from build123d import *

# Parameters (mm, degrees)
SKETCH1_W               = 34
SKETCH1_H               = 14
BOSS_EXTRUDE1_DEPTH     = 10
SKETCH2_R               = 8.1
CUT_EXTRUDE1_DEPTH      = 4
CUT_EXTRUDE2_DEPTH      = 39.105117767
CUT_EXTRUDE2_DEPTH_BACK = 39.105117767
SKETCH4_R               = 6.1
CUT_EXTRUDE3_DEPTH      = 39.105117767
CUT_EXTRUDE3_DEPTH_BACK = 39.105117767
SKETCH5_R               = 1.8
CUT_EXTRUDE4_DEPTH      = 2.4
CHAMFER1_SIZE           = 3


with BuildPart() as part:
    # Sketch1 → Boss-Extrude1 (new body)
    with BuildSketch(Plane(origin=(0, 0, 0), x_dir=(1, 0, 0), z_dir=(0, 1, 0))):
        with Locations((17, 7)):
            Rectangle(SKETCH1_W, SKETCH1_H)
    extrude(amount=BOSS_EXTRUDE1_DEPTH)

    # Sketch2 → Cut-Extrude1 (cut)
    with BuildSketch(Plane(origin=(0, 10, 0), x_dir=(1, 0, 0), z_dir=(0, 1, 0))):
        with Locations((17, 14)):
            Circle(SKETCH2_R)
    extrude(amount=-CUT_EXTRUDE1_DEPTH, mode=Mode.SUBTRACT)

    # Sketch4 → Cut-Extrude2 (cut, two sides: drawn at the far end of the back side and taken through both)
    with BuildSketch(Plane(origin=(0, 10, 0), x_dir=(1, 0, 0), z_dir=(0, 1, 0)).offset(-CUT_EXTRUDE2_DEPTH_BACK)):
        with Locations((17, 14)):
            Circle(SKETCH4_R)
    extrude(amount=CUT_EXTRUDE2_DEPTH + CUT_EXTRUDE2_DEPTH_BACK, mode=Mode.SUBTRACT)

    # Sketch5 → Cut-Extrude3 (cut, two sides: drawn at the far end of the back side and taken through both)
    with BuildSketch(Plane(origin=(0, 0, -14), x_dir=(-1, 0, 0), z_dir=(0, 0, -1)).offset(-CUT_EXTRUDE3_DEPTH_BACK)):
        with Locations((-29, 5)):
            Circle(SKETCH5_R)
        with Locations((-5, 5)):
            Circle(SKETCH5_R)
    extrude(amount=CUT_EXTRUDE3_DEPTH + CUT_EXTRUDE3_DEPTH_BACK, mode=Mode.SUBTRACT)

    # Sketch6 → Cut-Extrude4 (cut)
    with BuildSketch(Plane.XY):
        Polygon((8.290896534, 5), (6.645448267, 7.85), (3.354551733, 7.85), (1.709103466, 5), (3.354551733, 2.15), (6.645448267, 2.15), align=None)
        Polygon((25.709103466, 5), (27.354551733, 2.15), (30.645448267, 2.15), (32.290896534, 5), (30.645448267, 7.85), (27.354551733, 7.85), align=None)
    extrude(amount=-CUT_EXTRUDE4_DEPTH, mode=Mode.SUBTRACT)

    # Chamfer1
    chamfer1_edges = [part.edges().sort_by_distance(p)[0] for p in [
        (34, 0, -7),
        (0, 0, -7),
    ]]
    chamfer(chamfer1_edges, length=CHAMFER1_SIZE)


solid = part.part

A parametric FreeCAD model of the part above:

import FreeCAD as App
import Part
import Sketcher
from FreeCAD import Vector
Q = App.Units.Quantity


def edges_at(feature, points):
    """Names of the edges that pass closest to the given points."""
    edges = feature.Shape.Edges
    near = lambda p: min(range(len(edges)), key=lambda i: edges[i].distToShape(Part.Vertex(*p))[0])
    return sorted({f"Edge{near(p) + 1}" for p in points})

doc = App.newDocument("Part")
body = doc.addObject("PartDesign::Body", "Body")

# Sketch on XZ plane
sketch1 = body.newObject("Sketcher::SketchObject", "Sketch")
sketch1.AttachmentSupport = (doc.getObject("XZ_Plane"), [""])
sketch1.MapMode = "FlatFace"
sketch1.addGeometry(Part.LineSegment(Vector(0, -14, 0), Vector(0, 0, 0)), False)
sketch1.addGeometry(Part.LineSegment(Vector(0, 0, 0), Vector(34, 0, 0)), False)
sketch1.addGeometry(Part.LineSegment(Vector(34, 0, 0), Vector(34, -14, 0)), False)
sketch1.addGeometry(Part.LineSegment(Vector(34, -14, 0), Vector(0, -14, 0)), False)
sketch1.addConstraint(Sketcher.Constraint("Coincident", 0, 2, 1, 1))
sketch1.addConstraint(Sketcher.Constraint("Coincident", 1, 2, 2, 1))
sketch1.addConstraint(Sketcher.Constraint("Coincident", 2, 2, 3, 1))
sketch1.addConstraint(Sketcher.Constraint("Coincident", 3, 2, 0, 1))
sketch1.addConstraint(Sketcher.Constraint("Vertical", 0))
sketch1.addConstraint(Sketcher.Constraint("Horizontal", 1))
sketch1.addConstraint(Sketcher.Constraint("Vertical", 2))
sketch1.addConstraint(Sketcher.Constraint("Horizontal", 3))
sketch1.addConstraint(Sketcher.Constraint("Coincident", 0, 2, -1, 1))
sketch1.addConstraint(Sketcher.Constraint("DistanceX", 1, 1, 1, 2, Q("34 mm")))
sketch1.addConstraint(Sketcher.Constraint("DistanceY", 0, 1, 0, 2, Q("14 mm")))
pad1 = body.newObject("PartDesign::Pad", "Pad")
pad1.Profile = sketch1
pad1.Length = 10
pad1.Reversed = True

# Sketch on XZ plane
sketch2 = body.newObject("Sketcher::SketchObject", "Sketch001")
sketch2.AttachmentSupport = (doc.getObject("XZ_Plane"), [""])
sketch2.MapMode = "FlatFace"
sketch2.AttachmentOffset = App.Placement(Vector(0, 0, -10), App.Rotation())
sketch2.addGeometry(Part.Circle(Vector(17, -14, 0), Vector(0, 0, 1), 8.1), False)
sketch2.addConstraint(Sketcher.Constraint("Diameter", 0, Q("16.2 mm")))
sketch2.addConstraint(Sketcher.Constraint("DistanceX", -1, 1, 0, 3, Q("17 mm")))
sketch2.addConstraint(Sketcher.Constraint("DistanceY", 0, 3, -1, 1, Q("14 mm")))
pocket1 = body.newObject("PartDesign::Pocket", "Pocket")
pocket1.Profile = sketch2
pocket1.Length = 4
pocket1.Reversed = True

# Sketch on XZ plane
sketch3 = body.newObject("Sketcher::SketchObject", "Sketch002")
sketch3.AttachmentSupport = (doc.getObject("XZ_Plane"), [""])
sketch3.MapMode = "FlatFace"
sketch3.AttachmentOffset = App.Placement(Vector(0, 0, -10), App.Rotation())
sketch3.addGeometry(Part.Circle(Vector(17, -14, 0), Vector(0, 0, 1), 6.1), False)
sketch3.addConstraint(Sketcher.Constraint("Diameter", 0, Q("12.2 mm")))
sketch3.addConstraint(Sketcher.Constraint("DistanceX", -1, 1, 0, 3, Q("17 mm")))
sketch3.addConstraint(Sketcher.Constraint("DistanceY", 0, 3, -1, 1, Q("14 mm")))
pocket2 = body.newObject("PartDesign::Pocket", "Pocket001")
pocket2.Profile = sketch3
pocket2.Type = "ThroughAll"
pocket2.Midplane = True

# Sketch on XY plane
sketch4 = body.newObject("Sketcher::SketchObject", "Sketch003")
sketch4.AttachmentSupport = (doc.getObject("XY_Plane"), [""])
sketch4.MapMode = "FlatFace"
sketch4.AttachmentOffset = App.Placement(Vector(0, 0, -14), App.Rotation())
sketch4.addGeometry(Part.Circle(Vector(29, 5, 0), Vector(0, 0, 1), 1.8), False)
sketch4.addGeometry(Part.Circle(Vector(5, 5, 0), Vector(0, 0, 1), 1.8), False)
sketch4.addConstraint(Sketcher.Constraint("Equal", 0, 1))
sketch4.addConstraint(Sketcher.Constraint("Horizontal", 0, 3, 1, 3))
sketch4.addConstraint(Sketcher.Constraint("Diameter", 0, Q("3.6 mm")))
sketch4.addConstraint(Sketcher.Constraint("DistanceX", -1, 1, 0, 3, Q("29 mm")))
sketch4.addConstraint(Sketcher.Constraint("DistanceY", -1, 1, 0, 3, Q("5 mm")))
sketch4.addConstraint(Sketcher.Constraint("DistanceX", -1, 1, 1, 3, Q("5 mm")))
pocket3 = body.newObject("PartDesign::Pocket", "Pocket002")
pocket3.Profile = sketch4
pocket3.Type = "ThroughAll"
pocket3.Midplane = True

# Sketch on XY plane
sketch5 = body.newObject("Sketcher::SketchObject", "Sketch004")
sketch5.AttachmentSupport = (doc.getObject("XY_Plane"), [""])
sketch5.MapMode = "FlatFace"
sketch5.addGeometry(Part.LineSegment(Vector(8.290897, 5, 0), Vector(6.645448, 7.85, 0)), False)
sketch5.addGeometry(Part.LineSegment(Vector(6.645448, 7.85, 0), Vector(3.354552, 7.85, 0)), False)
sketch5.addGeometry(Part.LineSegment(Vector(3.354552, 7.85, 0), Vector(1.709103, 5, 0)), False)
sketch5.addGeometry(Part.LineSegment(Vector(1.709103, 5, 0), Vector(3.354552, 2.15, 0)), False)
sketch5.addGeometry(Part.LineSegment(Vector(3.354552, 2.15, 0), Vector(6.645448, 2.15, 0)), False)
sketch5.addGeometry(Part.LineSegment(Vector(6.645448, 2.15, 0), Vector(8.290897, 5, 0)), False)
sketch5.addGeometry(Part.LineSegment(Vector(25.709103, 5, 0), Vector(27.354552, 2.15, 0)), False)
sketch5.addGeometry(Part.LineSegment(Vector(27.354552, 2.15, 0), Vector(30.645448, 2.15, 0)), False)
sketch5.addGeometry(Part.LineSegment(Vector(30.645448, 2.15, 0), Vector(32.290897, 5, 0)), False)
sketch5.addGeometry(Part.LineSegment(Vector(32.290897, 5, 0), Vector(30.645448, 7.85, 0)), False)
sketch5.addGeometry(Part.LineSegment(Vector(30.645448, 7.85, 0), Vector(27.354552, 7.85, 0)), False)
sketch5.addGeometry(Part.LineSegment(Vector(27.354552, 7.85, 0), Vector(25.709103, 5, 0)), False)
sketch5.addConstraint(Sketcher.Constraint("Coincident", 0, 2, 1, 1))
sketch5.addConstraint(Sketcher.Constraint("Coincident", 1, 2, 2, 1))
sketch5.addConstraint(Sketcher.Constraint("Coincident", 2, 2, 3, 1))
sketch5.addConstraint(Sketcher.Constraint("Coincident", 3, 2, 4, 1))
sketch5.addConstraint(Sketcher.Constraint("Coincident", 4, 2, 5, 1))
sketch5.addConstraint(Sketcher.Constraint("Coincident", 5, 2, 0, 1))
sketch5.addConstraint(Sketcher.Constraint("Coincident", 6, 2, 7, 1))
sketch5.addConstraint(Sketcher.Constraint("Coincident", 7, 2, 8, 1))
sketch5.addConstraint(Sketcher.Constraint("Coincident", 8, 2, 9, 1))
sketch5.addConstraint(Sketcher.Constraint("Coincident", 9, 2, 10, 1))
sketch5.addConstraint(Sketcher.Constraint("Coincident", 10, 2, 11, 1))
sketch5.addConstraint(Sketcher.Constraint("Coincident", 11, 2, 6, 1))
sketch5.addConstraint(Sketcher.Constraint("Horizontal", 1))
sketch5.addConstraint(Sketcher.Constraint("Horizontal", 4))
sketch5.addConstraint(Sketcher.Constraint("Horizontal", 7))
sketch5.addConstraint(Sketcher.Constraint("Horizontal", 10))
sketch5.addConstraint(Sketcher.Constraint("Parallel", 0, 3))
sketch5.addConstraint(Sketcher.Constraint("Parallel", 2, 5))
sketch5.addConstraint(Sketcher.Constraint("Parallel", 3, 6))
sketch5.addConstraint(Sketcher.Constraint("Parallel", 5, 8))
sketch5.addConstraint(Sketcher.Constraint("Parallel", 6, 9))
sketch5.addConstraint(Sketcher.Constraint("Parallel", 8, 11))
sketch5.addConstraint(Sketcher.Constraint("Horizontal", 2, 2, 5, 2))
sketch5.addConstraint(Sketcher.Constraint("Horizontal", 4, 2, 6, 2))
sketch5.addConstraint(Sketcher.Constraint("Horizontal", 5, 2, 8, 2))
sketch5.addConstraint(Sketcher.Constraint("Horizontal", 1, 2, 9, 2))
sketch5.addConstraint(Sketcher.Constraint("Horizontal", 8, 2, 11, 2))
sketch5.addConstraint(Sketcher.Constraint("Vertical", 1, 2, 3, 2))
sketch5.addConstraint(Sketcher.Constraint("Vertical", 0, 2, 4, 2))
sketch5.addConstraint(Sketcher.Constraint("Equal", 4, 7))
sketch5.addConstraint(Sketcher.Constraint("Angle", 0, Q("120 deg")))
sketch5.addConstraint(Sketcher.Constraint("DistanceY", -1, 1, 2, 2, Q("5 mm")))
sketch5.addConstraint(Sketcher.Constraint("DistanceX", 3, 2, 6, 2, Q("24 mm")))
sketch5.addConstraint(Sketcher.Constraint("DistanceY", 3, 2, 1, 2, Q("5.7 mm")))
sketch5.addConstraint(Sketcher.Constraint("DistanceX", 1, 2, 1, 1, Q("3.290897 mm")))
sketch5.addConstraint(Sketcher.Constraint("DistanceX", -1, 1, 0, 2, Q("6.645448 mm")))
pocket4 = body.newObject("PartDesign::Pocket", "Pocket003")
pocket4.Profile = sketch5
pocket4.Length = 2.4
doc.recompute()

chamfer = body.newObject("PartDesign::Chamfer", "Chamfer")
chamfer.Base = (pocket4, edges_at(pocket4, [(34, 0, -7), (0, 0, -7)]))
chamfer.Size = 3

doc.recompute()
